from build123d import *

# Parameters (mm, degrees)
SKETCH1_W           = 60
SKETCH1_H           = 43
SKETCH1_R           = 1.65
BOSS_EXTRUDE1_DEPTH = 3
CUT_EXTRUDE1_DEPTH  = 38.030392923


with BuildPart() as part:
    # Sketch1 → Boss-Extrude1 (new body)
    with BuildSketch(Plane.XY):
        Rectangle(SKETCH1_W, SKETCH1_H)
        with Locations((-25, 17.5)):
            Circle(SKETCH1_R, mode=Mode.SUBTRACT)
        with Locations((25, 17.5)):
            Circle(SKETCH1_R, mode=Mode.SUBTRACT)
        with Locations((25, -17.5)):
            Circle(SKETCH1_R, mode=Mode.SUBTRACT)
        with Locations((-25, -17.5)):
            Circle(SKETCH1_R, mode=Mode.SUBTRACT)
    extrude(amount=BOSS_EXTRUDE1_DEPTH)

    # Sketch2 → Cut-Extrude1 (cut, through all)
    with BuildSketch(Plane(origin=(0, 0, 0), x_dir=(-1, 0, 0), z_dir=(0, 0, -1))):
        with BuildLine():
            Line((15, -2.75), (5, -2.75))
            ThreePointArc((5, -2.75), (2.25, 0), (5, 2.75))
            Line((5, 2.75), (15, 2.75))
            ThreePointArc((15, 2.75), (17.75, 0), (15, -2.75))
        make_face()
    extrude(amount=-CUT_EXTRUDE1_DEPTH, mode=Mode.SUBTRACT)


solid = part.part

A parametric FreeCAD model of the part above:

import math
import FreeCAD as App
import Part
import Sketcher
Q = App.Units.Quantity

doc = App.newDocument("Part")
body = doc.addObject("PartDesign::Body", "Body")

# Sketch on XY plane
sketch1 = body.newObject("Sketcher::SketchObject", "Sketch")
sketch1.AttachmentSupport = (doc.getObject("XY_Plane"), [""])
sketch1.MapMode = "FlatFace"
sketch1.addGeometry([
    Part.LineSegment(App.Vector(-30, 21.5, 0), App.Vector(-30, -21.5, 0)),  # 0
    Part.LineSegment(App.Vector(-30, -21.5, 0), App.Vector(30, -21.5, 0)),  # 1
    Part.LineSegment(App.Vector(30, -21.5, 0), App.Vector(30, 21.5, 0)),  # 2
    Part.LineSegment(App.Vector(30, 21.5, 0), App.Vector(-30, 21.5, 0)),  # 3
    Part.Circle(App.Vector(-25, -17.5, 0), App.Vector(0, 0, 1), 1.6),  # 4
    Part.Circle(App.Vector(25, -17.5, 0), App.Vector(0, 0, 1), 1.6),  # 5
    Part.Circle(App.Vector(-25, 17.5, 0), App.Vector(0, 0, 1), 1.6),  # 6
    Part.Circle(App.Vector(25, 17.5, 0), App.Vector(0, 0, 1), 1.6),  # 7
], False)
sketch1.addConstraint([
    Sketcher.Constraint("Coincident", 0, 2, 1, 1),
    Sketcher.Constraint("Coincident", 1, 2, 2, 1),
    Sketcher.Constraint("Coincident", 2, 2, 3, 1),
    Sketcher.Constraint("Coincident", 3, 2, 0, 1),
    Sketcher.Constraint("Vertical", 0),
    Sketcher.Constraint("Horizontal", 1),
    Sketcher.Constraint("Vertical", 2),
    Sketcher.Constraint("Horizontal", 3),
    Sketcher.Constraint("Equal", 4, 5),
    Sketcher.Constraint("Equal", 5, 6),
    Sketcher.Constraint("Equal", 6, 7),
    Sketcher.Constraint("Symmetric", 5, 3, 6, 3, -1, 1),
    Sketcher.Constraint("Symmetric", 4, 3, 7, 3, -1, 1),
    Sketcher.Constraint("Symmetric", 0, 2, 2, 2, -1, 1),
    Sketcher.Constraint("Symmetric", 4, 3, 5, 3, -2),
    Sketcher.Constraint("Diameter", 4, Q("3.3 mm")),
    Sketcher.Constraint("DistanceX", 1, 1, 1, 2, Q("60 mm")),
    Sketcher.Constraint("DistanceY", 0, 2, 0, 1, Q("43 mm")),
    Sketcher.Constraint("DistanceX", 4, 3, -1, 1, Q("25 mm")),
    Sketcher.Constraint("DistanceY", 4, 3, 6, 3, Q("35 mm")),
])
pad1 = body.newObject("PartDesign::Pad", "Pad")
pad1.Profile = sketch1
pad1.Length = 3

# Sketch on XY plane
sketch2 = body.newObject("Sketcher::SketchObject", "Sketch001")
sketch2.AttachmentSupport = (doc.getObject("XY_Plane"), [""])
sketch2.MapMode = "FlatFace"
sketch2.addGeometry([
    Part.LineSegment(App.Vector(-5, -2.8, 0), App.Vector(-15, -2.8, 0)),
    Part.ArcOfCircle(Part.Circle(App.Vector(-15, 0, 0), App.Vector(0, 0, 1), 2.8), math.radians(90), math.radians(270)),
    Part.LineSegment(App.Vector(-15, 2.8, 0), App.Vector(-5, 2.8, 0)),
    Part.ArcOfCircle(Part.Circle(App.Vector(-5, 0, 0), App.Vector(0, 0, 1), 2.8), math.radians(-90), math.radians(90)),
], False)
sketch2.addConstraint([
    Sketcher.Constraint("Tangent", 0, 2, 1, 2),
    Sketcher.Constraint("Tangent", 1, 1, 2, 1),
    Sketcher.Constraint("Tangent", 2, 2, 3, 2),
    Sketcher.Constraint("Tangent", 3, 1, 0, 1),
    Sketcher.Constraint("Horizontal", 0),
    Sketcher.Constraint("Horizontal", 2),
    Sketcher.Constraint("PointOnObject", 1, 3, -1),
    Sketcher.Constraint("DistanceX", 0, 2, 0, 1, Q("10 mm")),
    Sketcher.Constraint("Radius", 1, Q("2.75 mm")),
    Sketcher.Constraint("DistanceX", 1, 3, -1, 1, Q("15 mm")),
])
pocket1 = body.newObject("PartDesign::Pocket", "Pocket")
pocket1.Profile = sketch2
pocket1.Type = "ThroughAll"
pocket1.Reversed = True

doc.recompute()
